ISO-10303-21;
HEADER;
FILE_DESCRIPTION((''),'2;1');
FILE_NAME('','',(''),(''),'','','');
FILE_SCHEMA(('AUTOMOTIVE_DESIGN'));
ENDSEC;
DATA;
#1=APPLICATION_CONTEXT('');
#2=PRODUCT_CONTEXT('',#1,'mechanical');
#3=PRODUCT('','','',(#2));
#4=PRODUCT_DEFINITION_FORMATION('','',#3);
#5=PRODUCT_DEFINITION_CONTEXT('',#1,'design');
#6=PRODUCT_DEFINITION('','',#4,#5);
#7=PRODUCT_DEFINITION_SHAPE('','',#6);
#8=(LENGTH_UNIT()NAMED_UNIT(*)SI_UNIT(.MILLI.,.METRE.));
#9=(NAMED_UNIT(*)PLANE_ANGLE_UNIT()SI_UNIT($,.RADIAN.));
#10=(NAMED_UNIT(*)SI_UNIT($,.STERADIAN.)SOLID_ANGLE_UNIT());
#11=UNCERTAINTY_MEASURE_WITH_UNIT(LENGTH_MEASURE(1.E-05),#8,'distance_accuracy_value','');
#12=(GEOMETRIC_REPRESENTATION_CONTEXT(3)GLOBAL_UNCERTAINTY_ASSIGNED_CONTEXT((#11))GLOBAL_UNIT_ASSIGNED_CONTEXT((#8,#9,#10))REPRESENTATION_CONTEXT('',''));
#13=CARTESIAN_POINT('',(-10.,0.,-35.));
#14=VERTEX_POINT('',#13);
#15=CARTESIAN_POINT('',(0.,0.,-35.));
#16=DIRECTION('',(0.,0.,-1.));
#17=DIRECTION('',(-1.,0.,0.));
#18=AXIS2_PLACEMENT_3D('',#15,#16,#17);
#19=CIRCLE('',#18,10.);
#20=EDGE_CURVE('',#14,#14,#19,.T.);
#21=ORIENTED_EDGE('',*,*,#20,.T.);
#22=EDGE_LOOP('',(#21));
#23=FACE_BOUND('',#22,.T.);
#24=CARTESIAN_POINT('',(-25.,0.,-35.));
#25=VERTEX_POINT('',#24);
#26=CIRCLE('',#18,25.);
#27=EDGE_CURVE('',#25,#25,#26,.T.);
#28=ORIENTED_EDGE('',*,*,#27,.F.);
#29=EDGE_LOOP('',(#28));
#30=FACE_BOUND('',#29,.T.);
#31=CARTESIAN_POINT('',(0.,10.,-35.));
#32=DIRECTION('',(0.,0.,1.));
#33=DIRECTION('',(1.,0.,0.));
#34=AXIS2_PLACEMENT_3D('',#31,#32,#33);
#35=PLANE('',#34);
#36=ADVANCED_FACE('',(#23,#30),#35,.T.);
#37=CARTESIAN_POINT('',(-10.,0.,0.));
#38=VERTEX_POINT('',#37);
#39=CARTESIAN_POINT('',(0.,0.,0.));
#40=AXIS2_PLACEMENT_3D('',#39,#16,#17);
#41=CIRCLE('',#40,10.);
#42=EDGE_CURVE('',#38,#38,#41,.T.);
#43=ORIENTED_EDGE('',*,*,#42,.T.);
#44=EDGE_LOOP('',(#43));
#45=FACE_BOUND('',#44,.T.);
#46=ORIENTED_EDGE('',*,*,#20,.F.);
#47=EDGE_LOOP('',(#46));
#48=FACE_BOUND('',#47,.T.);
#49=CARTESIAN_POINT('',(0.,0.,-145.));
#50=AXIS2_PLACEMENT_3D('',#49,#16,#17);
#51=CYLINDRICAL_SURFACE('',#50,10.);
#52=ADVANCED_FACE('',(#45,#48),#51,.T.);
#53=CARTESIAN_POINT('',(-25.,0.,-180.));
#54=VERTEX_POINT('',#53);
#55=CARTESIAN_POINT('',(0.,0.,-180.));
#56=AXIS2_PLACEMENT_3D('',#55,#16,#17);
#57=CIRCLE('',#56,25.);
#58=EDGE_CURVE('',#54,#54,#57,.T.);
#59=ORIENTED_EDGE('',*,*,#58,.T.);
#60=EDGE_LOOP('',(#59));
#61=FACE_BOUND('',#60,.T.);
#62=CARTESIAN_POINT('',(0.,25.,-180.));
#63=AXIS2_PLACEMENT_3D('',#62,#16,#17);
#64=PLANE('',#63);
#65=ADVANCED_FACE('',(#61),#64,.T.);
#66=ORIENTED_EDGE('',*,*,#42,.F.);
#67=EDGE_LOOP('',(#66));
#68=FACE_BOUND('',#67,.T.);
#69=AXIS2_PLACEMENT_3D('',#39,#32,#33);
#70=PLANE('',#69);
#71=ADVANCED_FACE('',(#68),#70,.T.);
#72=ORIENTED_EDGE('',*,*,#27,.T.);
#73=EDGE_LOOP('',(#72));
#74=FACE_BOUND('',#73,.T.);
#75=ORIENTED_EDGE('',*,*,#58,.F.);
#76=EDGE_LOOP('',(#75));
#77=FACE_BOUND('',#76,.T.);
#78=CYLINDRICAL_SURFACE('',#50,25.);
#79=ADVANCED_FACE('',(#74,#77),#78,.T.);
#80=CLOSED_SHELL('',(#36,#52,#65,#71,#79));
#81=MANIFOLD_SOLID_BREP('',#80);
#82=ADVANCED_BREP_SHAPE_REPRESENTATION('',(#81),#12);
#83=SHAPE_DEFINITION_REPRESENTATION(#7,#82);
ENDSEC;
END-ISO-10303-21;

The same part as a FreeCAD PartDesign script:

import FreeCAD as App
import Part
import Sketcher

V = App.Vector
Q = App.Units.Quantity


def add_polygon(sketch, points):
    """Adds a closed chain of lines whose ends are joined by coincident constraints."""
    first, n = sketch.GeometryCount, len(points)
    for a, b in zip(points, points[1:] + points[:1]):
        sketch.addGeometry(Part.LineSegment(App.Vector(*a, 0), App.Vector(*b, 0)), False)
    for i in range(n):
        sketch.addConstraint(Sketcher.Constraint("Coincident", first + i, 2, first + (i + 1) % n, 1))

doc = App.newDocument("Part")
body = doc.addObject("PartDesign::Body", "Body")

# Sketch on YZ plane
sketch1 = doc.addObject("Sketcher::SketchObject", "Sketch")
body.addObject(sketch1)
sketch1.AttachmentSupport = (doc.YZ_Plane, [""])
sketch1.MapMode = "FlatFace"
add_polygon(sketch1, [(10, 0), (0, 0), (0, -180), (25, -180), (25, -35), (10, -35)])  # lines 0-5
sketch1.addConstraint([
    Sketcher.Constraint("Horizontal", 0),
    Sketcher.Constraint("Vertical", 1),
    Sketcher.Constraint("Horizontal", 2),
    Sketcher.Constraint("Vertical", 3),
    Sketcher.Constraint("Horizontal", 4),
    Sketcher.Constraint("Vertical", 5),
    Sketcher.Constraint("Coincident", 0, 2, -1, 1),
    Sketcher.Constraint("DistanceX", 0, 2, 0, 1, Q("10 mm")),
    Sketcher.Constraint("DistanceX", 2, 1, 2, 2, Q("25 mm")),
    Sketcher.Constraint("DistanceY", 1, 2, 1, 1, Q("180 mm")),
    Sketcher.Constraint("DistanceY", 3, 1, 3, 2, Q("145 mm")),
])
revolution = doc.addObject("PartDesign::Revolution", "Revolution")
body.addObject(revolution)
revolution.Profile = sketch1
revolution.ReferenceAxis = (sketch1, ["V_Axis"])
revolution.Angle = 360

doc.recompute()
